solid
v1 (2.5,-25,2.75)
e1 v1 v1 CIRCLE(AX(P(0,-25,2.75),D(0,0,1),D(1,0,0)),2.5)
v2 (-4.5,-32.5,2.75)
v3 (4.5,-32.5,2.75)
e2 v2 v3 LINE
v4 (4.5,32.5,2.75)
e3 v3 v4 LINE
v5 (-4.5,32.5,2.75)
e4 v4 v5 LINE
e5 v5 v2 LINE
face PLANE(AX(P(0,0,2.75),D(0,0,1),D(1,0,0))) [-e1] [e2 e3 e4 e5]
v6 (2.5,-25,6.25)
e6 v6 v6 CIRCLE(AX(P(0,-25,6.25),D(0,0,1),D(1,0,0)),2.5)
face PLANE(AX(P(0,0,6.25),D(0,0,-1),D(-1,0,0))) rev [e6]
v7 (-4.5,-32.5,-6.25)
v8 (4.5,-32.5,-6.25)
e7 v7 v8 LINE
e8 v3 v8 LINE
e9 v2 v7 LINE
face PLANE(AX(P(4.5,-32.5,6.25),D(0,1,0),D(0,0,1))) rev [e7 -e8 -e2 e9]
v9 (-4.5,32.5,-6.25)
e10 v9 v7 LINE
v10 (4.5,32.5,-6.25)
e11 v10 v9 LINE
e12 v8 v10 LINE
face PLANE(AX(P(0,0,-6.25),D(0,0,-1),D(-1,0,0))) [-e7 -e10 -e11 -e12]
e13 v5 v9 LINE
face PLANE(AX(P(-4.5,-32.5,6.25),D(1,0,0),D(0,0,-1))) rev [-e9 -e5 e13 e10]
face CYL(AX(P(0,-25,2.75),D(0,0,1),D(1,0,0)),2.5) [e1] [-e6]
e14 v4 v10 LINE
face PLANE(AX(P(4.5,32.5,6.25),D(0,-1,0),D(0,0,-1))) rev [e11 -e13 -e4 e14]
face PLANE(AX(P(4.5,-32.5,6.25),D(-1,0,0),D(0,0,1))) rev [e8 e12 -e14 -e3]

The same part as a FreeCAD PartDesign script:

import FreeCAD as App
import Part
import Sketcher
from FreeCAD import Vector
Q = App.Units.Quantity

doc = App.newDocument("Part")
body = doc.addObject("PartDesign::Body", "Body")

sketch1 = doc.addObject("Sketcher::SketchObject", "Sketch")
body.addObject(sketch1)
sketch1.AttachmentSupport = (doc.XY_Plane, [""])
sketch1.MapMode = "FlatFace"
sketch1.addGeometry([
    Part.LineSegment(Vector(-4, -32, 0), Vector(4, -32, 0)),
    Part.LineSegment(Vector(4, -32, 0), Vector(4, 32, 0)),
    Part.LineSegment(Vector(4, 32, 0), Vector(-4, 32, 0)),
    Part.LineSegment(Vector(-4, 32, 0), Vector(-4, -32, 0)),
], False)
sketch1.addConstraint([
    Sketcher.Constraint("Coincident", 0, 2, 1, 1),
    Sketcher.Constraint("Coincident", 1, 2, 2, 1),
    Sketcher.Constraint("Coincident", 2, 2, 3, 1),
    Sketcher.Constraint("Coincident", 3, 2, 0, 1),
    Sketcher.Constraint("Horizontal", 0),
    Sketcher.Constraint("Vertical", 1),
    Sketcher.Constraint("Horizontal", 2),
    Sketcher.Constraint("Vertical", 3),
    Sketcher.Constraint("Symmetric", 0, 2, 2, 2, -1, 1),
    Sketcher.Constraint("DistanceX", 0, 1, 0, 2, Q("9 mm")),
    Sketcher.Constraint("DistanceY", 1, 1, 1, 2, Q("65 mm")),
])
pad1 = doc.addObject("PartDesign::Pad", "Pad")
body.addObject(pad1)
pad1.Profile = sketch1
pad1.Length = 12.5
pad1.Midplane = True

sketch2 = doc.addObject("Sketcher::SketchObject", "Sketch001")
body.addObject(sketch2)
sketch2.AttachmentSupport = (doc.XY_Plane, [""])
sketch2.MapMode = "FlatFace"
sketch2.AttachmentOffset = App.Placement(Vector(0, 0, 6.25), App.Rotation())
sketch2.addGeometry([
    Part.LineSegment(Vector(-4.5, 32.5, 0), Vector(-4.5, -32.5, 0)),
    Part.LineSegment(Vector(-4.5, -32.5, 0), Vector(4.5, -32.5, 0)),
    Part.LineSegment(Vector(4.5, -32.5, 0), Vector(4.5, 32.5, 0)),
    Part.LineSegment(Vector(4.5, 32.5, 0), Vector(-4.5, 32.5, 0)),
    Part.Circle(Vector(0, -25, 0), Vector(0, 0, 1), 2.5),
], False)
sketch2.addConstraint([
    Sketcher.Constraint("Coincident", 0, 2, 1, 1),
    Sketcher.Constraint("Coincident", 1, 2, 2, 1),
    Sketcher.Constraint("Coincident", 2, 2, 3, 1),
    Sketcher.Constraint("Coincident", 3, 2, 0, 1),
    Sketcher.Constraint("Vertical", 0),
    Sketcher.Constraint("Horizontal", 1),
    Sketcher.Constraint("Vertical", 2),
    Sketcher.Constraint("Horizontal", 3),
    Sketcher.Constraint("Symmetric", 0, 2, 2, 2, -1, 1),
    Sketcher.Constraint("PointOnObject", 4, 3, -2),
    Sketcher.Constraint("Diameter", 4, Q("5 mm")),
    Sketcher.Constraint("DistanceX", 1, 1, 1, 2, Q("9 mm")),
    Sketcher.Constraint("DistanceY", 0, 2, 0, 1, Q("65 mm")),
    Sketcher.Constraint("DistanceY", 4, 3, -1, 1, Q("25 mm")),
])
pocket1 = doc.addObject("PartDesign::Pocket", "Pocket")
body.addObject(pocket1)
pocket1.Profile = sketch2
pocket1.Length = 3.5

doc.recompute()
